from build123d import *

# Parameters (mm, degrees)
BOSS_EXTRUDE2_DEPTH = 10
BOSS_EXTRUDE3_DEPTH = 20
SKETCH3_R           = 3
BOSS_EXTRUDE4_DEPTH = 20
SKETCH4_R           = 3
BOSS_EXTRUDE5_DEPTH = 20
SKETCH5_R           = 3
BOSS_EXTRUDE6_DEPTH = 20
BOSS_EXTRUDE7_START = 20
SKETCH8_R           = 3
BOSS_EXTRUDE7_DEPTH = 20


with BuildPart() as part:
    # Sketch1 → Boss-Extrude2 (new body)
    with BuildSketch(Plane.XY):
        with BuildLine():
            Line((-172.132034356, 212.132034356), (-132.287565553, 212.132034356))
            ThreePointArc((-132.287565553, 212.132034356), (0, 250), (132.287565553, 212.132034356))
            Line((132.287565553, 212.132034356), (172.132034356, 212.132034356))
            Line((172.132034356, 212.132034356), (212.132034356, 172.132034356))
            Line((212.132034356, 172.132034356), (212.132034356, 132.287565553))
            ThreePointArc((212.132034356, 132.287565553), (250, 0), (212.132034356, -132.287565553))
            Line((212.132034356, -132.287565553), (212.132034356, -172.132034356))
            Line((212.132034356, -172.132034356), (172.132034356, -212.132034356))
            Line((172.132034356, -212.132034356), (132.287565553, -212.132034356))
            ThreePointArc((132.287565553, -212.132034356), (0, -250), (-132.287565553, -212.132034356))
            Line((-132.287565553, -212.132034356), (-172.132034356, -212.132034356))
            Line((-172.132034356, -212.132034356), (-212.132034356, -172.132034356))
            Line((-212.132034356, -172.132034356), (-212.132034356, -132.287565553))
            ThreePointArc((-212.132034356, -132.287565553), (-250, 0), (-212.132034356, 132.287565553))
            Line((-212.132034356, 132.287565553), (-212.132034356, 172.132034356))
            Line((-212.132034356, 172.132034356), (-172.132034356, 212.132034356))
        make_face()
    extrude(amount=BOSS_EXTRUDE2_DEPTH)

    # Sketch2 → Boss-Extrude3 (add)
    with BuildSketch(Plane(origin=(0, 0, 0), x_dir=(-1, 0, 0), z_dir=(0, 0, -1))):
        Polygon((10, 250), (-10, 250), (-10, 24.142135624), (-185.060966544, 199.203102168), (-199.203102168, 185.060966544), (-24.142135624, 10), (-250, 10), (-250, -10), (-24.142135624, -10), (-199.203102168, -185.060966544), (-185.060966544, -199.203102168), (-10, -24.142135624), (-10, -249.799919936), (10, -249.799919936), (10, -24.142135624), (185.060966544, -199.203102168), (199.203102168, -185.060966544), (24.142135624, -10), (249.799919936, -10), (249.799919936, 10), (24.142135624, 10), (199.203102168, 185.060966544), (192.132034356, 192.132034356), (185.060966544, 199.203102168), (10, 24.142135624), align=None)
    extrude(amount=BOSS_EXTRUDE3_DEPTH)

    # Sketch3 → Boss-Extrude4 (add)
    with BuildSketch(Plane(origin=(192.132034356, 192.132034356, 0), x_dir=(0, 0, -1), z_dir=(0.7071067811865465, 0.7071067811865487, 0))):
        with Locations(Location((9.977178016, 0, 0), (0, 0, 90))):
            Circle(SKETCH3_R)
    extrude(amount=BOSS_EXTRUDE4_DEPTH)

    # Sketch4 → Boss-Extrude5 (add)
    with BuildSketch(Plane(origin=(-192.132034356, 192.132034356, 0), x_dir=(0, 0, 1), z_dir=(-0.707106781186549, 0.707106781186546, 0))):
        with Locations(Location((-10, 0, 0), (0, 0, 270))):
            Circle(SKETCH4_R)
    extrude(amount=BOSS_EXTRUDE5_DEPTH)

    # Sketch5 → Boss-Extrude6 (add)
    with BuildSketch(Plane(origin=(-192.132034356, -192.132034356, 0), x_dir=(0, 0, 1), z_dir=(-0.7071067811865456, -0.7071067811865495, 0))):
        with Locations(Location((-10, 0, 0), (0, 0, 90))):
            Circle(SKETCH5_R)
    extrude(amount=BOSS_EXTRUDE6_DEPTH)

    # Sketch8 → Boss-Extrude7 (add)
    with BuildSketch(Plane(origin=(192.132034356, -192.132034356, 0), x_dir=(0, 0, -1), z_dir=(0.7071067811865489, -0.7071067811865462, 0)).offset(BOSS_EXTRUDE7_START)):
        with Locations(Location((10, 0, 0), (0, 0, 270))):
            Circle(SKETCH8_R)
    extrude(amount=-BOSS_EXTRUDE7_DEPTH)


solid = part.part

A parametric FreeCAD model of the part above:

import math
import FreeCAD as App
import Part
import Sketcher

V = App.Vector

doc = App.newDocument("Part")
body = doc.addObject("PartDesign::Body", "Body")

# Sketch on XY plane
sketch1 = body.newObject("Sketcher::SketchObject", "Sketch")
sketch1.AttachmentSupport = (doc.getObject("XY_Plane"), [""])
sketch1.MapMode = "FlatFace"
sketch1.addGeometry(Part.LineSegment(V(-132, 212, 0), V(-172, 212, 0)), False)
sketch1.addGeometry(Part.LineSegment(V(-172, 212, 0), V(-212, 172, 0)), False)
sketch1.addGeometry(Part.LineSegment(V(-212, 172, 0), V(-212, 132, 0)), False)
sketch1.addGeometry(Part.ArcOfCircle(Part.Circle(V(0, 0, 0), V(0, 0, 1), 250), math.radians(148), math.radians(212)), False)
sketch1.addGeometry(Part.LineSegment(V(-212, -132, 0), V(-212, -172, 0)), False)
sketch1.addGeometry(Part.LineSegment(V(-212, -172, 0), V(-172, -212, 0)), False)
sketch1.addGeometry(Part.LineSegment(V(-172, -212, 0), V(-132, -212, 0)), False)
sketch1.addGeometry(Part.ArcOfCircle(Part.Circle(V(0, 0, 0), V(0, 0, 1), 250), math.radians(-122), math.radians(-58)), False)
sketch1.addGeometry(Part.LineSegment(V(132, -212, 0), V(172, -212, 0)), False)
sketch1.addGeometry(Part.LineSegment(V(172, -212, 0), V(212, -172, 0)), False)
sketch1.addGeometry(Part.LineSegment(V(212, -172, 0), V(212, -132, 0)), False)
sketch1.addGeometry(Part.ArcOfCircle(Part.Circle(V(0, 0, 0), V(0, 0, 1), 250), math.radians(-32), math.radians(32)), False)
sketch1.addGeometry(Part.LineSegment(V(212, 132, 0), V(212, 172, 0)), False)
sketch1.addGeometry(Part.LineSegment(V(212, 172, 0), V(172, 212, 0)), False)
sketch1.addGeometry(Part.LineSegment(V(172, 212, 0), V(132, 212, 0)), False)
sketch1.addGeometry(Part.ArcOfCircle(Part.Circle(V(0, 0, 0), V(0, 0, 1), 250), math.radians(58), math.radians(122)), False)
sketch1.addConstraint(Sketcher.Constraint("Coincident", 0, 2, 1, 1))
sketch1.addConstraint(Sketcher.Constraint("Coincident", 1, 2, 2, 1))
sketch1.addConstraint(Sketcher.Constraint("Coincident", 2, 2, 3, 1))
sketch1.addConstraint(Sketcher.Constraint("Coincident", 3, 2, 4, 1))
sketch1.addConstraint(Sketcher.Constraint("Coincident", 4, 2, 5, 1))
sketch1.addConstraint(Sketcher.Constraint("Coincident", 5, 2, 6, 1))
sketch1.addConstraint(Sketcher.Constraint("Coincident", 6, 2, 7, 1))
sketch1.addConstraint(Sketcher.Constraint("Coincident", 7, 2, 8, 1))
sketch1.addConstraint(Sketcher.Constraint("Coincident", 8, 2, 9, 1))
sketch1.addConstraint(Sketcher.Constraint("Coincident", 9, 2, 10, 1))
sketch1.addConstraint(Sketcher.Constraint("Coincident", 10, 2, 11, 1))
sketch1.addConstraint(Sketcher.Constraint("Coincident", 11, 2, 12, 1))
sketch1.addConstraint(Sketcher.Constraint("Coincident", 12, 2, 13, 1))
sketch1.addConstraint(Sketcher.Constraint("Coincident", 13, 2, 14, 1))
sketch1.addConstraint(Sketcher.Constraint("Coincident", 14, 2, 15, 1))
sketch1.addConstraint(Sketcher.Constraint("Coincident", 15, 2, 0, 1))
sketch1.addConstraint(Sketcher.Constraint("Horizontal", 0))
sketch1.addConstraint(Sketcher.Constraint("Vertical", 2))
sketch1.addConstraint(Sketcher.Constraint("Vertical", 4))
sketch1.addConstraint(Sketcher.Constraint("Horizontal", 6))
sketch1.addConstraint(Sketcher.Constraint("Horizontal", 8))
sketch1.addConstraint(Sketcher.Constraint("Vertical", 10))
sketch1.addConstraint(Sketcher.Constraint("Vertical", 12))
sketch1.addConstraint(Sketcher.Constraint("Horizontal", 14))
sketch1.addConstraint(Sketcher.Constraint("Coincident", 3, 3, -1, 1))
sketch1.addConstraint(Sketcher.Constraint("Coincident", 7, 3, -1, 1))
sketch1.addConstraint(Sketcher.Constraint("Coincident", 11, 3, -1, 1))
sketch1.addConstraint(Sketcher.Constraint("Coincident", 15, 3, -1, 1))
sketch1.addConstraint(Sketcher.Constraint("Equal", 3, 7))
sketch1.addConstraint(Sketcher.Constraint("Equal", 7, 11))
sketch1.addConstraint(Sketcher.Constraint("Equal", 11, 15))
sketch1.addConstraint(Sketcher.Constraint("Symmetric", 0, 2, 8, 2, -1, 1))
sketch1.addConstraint(Sketcher.Constraint("Symmetric", 1, 2, 9, 2, -1, 1))
sketch1.addConstraint(Sketcher.Constraint("Symmetric", 4, 2, 12, 2, -1, 1))
sketch1.addConstraint(Sketcher.Constraint("Symmetric", 5, 2, 13, 2, -1, 1))
sketch1.addConstraint(Sketcher.Constraint("Symmetric", 5, 2, 8, 2, -2))
sketch1.addConstraint(Sketcher.Constraint("Symmetric", 4, 2, 9, 2, -2))
sketch1.addConstraint(Sketcher.Constraint("Perpendicular", 1, 5))
sketch1.addConstraint(Sketcher.Constraint("Equal", 14, 2))
sketch1.addConstraint(Sketcher.Constraint("Radius", 3, 250.0))
sketch1.addConstraint(Sketcher.Constraint("DistanceX", 1, 2, 0, 2, 40.0))
sketch1.addConstraint(Sketcher.Constraint("DistanceX", 0, 2, 0, 1, 39.844469))
pad1 = body.newObject("PartDesign::Pad", "Pad")
pad1.Profile = sketch1
pad1.Length = 10

# Sketch on XY plane
sketch2 = body.newObject("Sketcher::SketchObject", "Sketch001")
sketch2.AttachmentSupport = (doc.getObject("XY_Plane"), [""])
sketch2.MapMode = "FlatFace"
sketch2.addGeometry(Part.LineSegment(V(-10, 250, 0), V(10, 250, 0)), False)
sketch2.addGeometry(Part.LineSegment(V(10, 250, 0), V(10, 24, 0)), False)
sketch2.addGeometry(Part.LineSegment(V(10, 24, 0), V(185, 199, 0)), False)
sketch2.addGeometry(Part.LineSegment(V(185, 199, 0), V(199, 185, 0)), False)
sketch2.addGeometry(Part.LineSegment(V(199, 185, 0), V(24, 10, 0)), False)
sketch2.addGeometry(Part.LineSegment(V(24, 10, 0), V(250, 10, 0)), False)
sketch2.addGeometry(Part.LineSegment(V(250, 10, 0), V(250, -10, 0)), False)
sketch2.addGeometry(Part.LineSegment(V(250, -10, 0), V(24, -10, 0)), False)
sketch2.addGeometry(Part.LineSegment(V(24, -10, 0), V(199, -185, 0)), False)
sketch2.addGeometry(Part.LineSegment(V(199, -185, 0), V(185, -199, 0)), False)
sketch2.addGeometry(Part.LineSegment(V(185, -199, 0), V(10, -24, 0)), False)
sketch2.addGeometry(Part.LineSegment(V(10, -24, 0), V(10, -250, 0)), False)
sketch2.addGeometry(Part.LineSegment(V(10, -250, 0), V(-10, -250, 0)), False)
sketch2.addGeometry(Part.LineSegment(V(-10, -250, 0), V(-10, -24, 0)), False)
sketch2.addGeometry(Part.LineSegment(V(-10, -24, 0), V(-185, -199, 0)), False)
sketch2.addGeometry(Part.LineSegment(V(-185, -199, 0), V(-199, -185, 0)), False)
sketch2.addGeometry(Part.LineSegment(V(-199, -185, 0), V(-24, -10, 0)), False)
sketch2.addGeometry(Part.LineSegment(V(-24, -10, 0), V(-250, -10, 0)), False)
sketch2.addGeometry(Part.LineSegment(V(-250, -10, 0), V(-250, 10, 0)), False)
sketch2.addGeometry(Part.LineSegment(V(-250, 10, 0), V(-24, 10, 0)), False)
sketch2.addGeometry(Part.LineSegment(V(-24, 10, 0), V(-199, 185, 0)), False)
sketch2.addGeometry(Part.LineSegment(V(-199, 185, 0), V(-185, 199, 0)), False)
sketch2.addGeometry(Part.LineSegment(V(-185, 199, 0), V(-10, 24, 0)), False)
sketch2.addGeometry(Part.LineSegment(V(-10, 24, 0), V(-10, 250, 0)), False)
sketch2.addConstraint(Sketcher.Constraint("Coincident", 0, 2, 1, 1))
sketch2.addConstraint(Sketcher.Constraint("Coincident", 1, 2, 2, 1))
sketch2.addConstraint(Sketcher.Constraint("Coincident", 2, 2, 3, 1))
sketch2.addConstraint(Sketcher.Constraint("Coincident", 3, 2, 4, 1))
sketch2.addConstraint(Sketcher.Constraint("Coincident", 4, 2, 5, 1))
sketch2.addConstraint(Sketcher.Constraint("Coincident", 5, 2, 6, 1))
sketch2.addConstraint(Sketcher.Constraint("Coincident", 6, 2, 7, 1))
sketch2.addConstraint(Sketcher.Constraint("Coincident", 7, 2, 8, 1))
sketch2.addConstraint(Sketcher.Constraint("Coincident", 8, 2, 9, 1))
sketch2.addConstraint(Sketcher.Constraint("Coincident", 9, 2, 10, 1))
sketch2.addConstraint(Sketcher.Constraint("Coincident", 10, 2, 11, 1))
sketch2.addConstraint(Sketcher.Constraint("Coincident", 11, 2, 12, 1))
sketch2.addConstraint(Sketcher.Constraint("Coincident", 12, 2, 13, 1))
sketch2.addConstraint(Sketcher.Constraint("Coincident", 13, 2, 14, 1))
sketch2.addConstraint(Sketcher.Constraint("Coincident", 14, 2, 15, 1))
sketch2.addConstraint(Sketcher.Constraint("Coincident", 15, 2, 16, 1))
sketch2.addConstraint(Sketcher.Constraint("Coincident", 16, 2, 17, 1))
sketch2.addConstraint(Sketcher.Constraint("Coincident", 17, 2, 18, 1))
sketch2.addConstraint(Sketcher.Constraint("Coincident", 18, 2, 19, 1))
sketch2.addConstraint(Sketcher.Constraint("Coincident", 19, 2, 20, 1))
sketch2.addConstraint(Sketcher.Constraint("Coincident", 20, 2, 21, 1))
sketch2.addConstraint(Sketcher.Constraint("Coincident", 21, 2, 22, 1))
sketch2.addConstraint(Sketcher.Constraint("Coincident", 22, 2, 23, 1))
sketch2.addConstraint(Sketcher.Constraint("Coincident", 23, 2, 0, 1))
sketch2.addConstraint(Sketcher.Constraint("Horizontal", 0))
sketch2.addConstraint(Sketcher.Constraint("Vertical", 1))
sketch2.addConstraint(Sketcher.Constraint("Horizontal", 5))
sketch2.addConstraint(Sketcher.Constraint("Vertical", 6))
sketch2.addConstraint(Sketcher.Constraint("Horizontal", 7))
sketch2.addConstraint(Sketcher.Constraint("Vertical", 11))
sketch2.addConstraint(Sketcher.Constraint("Horizontal", 12))
sketch2.addConstraint(Sketcher.Constraint("Vertical", 13))
sketch2.addConstraint(Sketcher.Constraint("Horizontal", 17))
sketch2.addConstraint(Sketcher.Constraint("Vertical", 18))
sketch2.addConstraint(Sketcher.Constraint("Horizontal", 19))
sketch2.addConstraint(Sketcher.Constraint("Vertical", 23))
sketch2.addConstraint(Sketcher.Constraint("Symmetric", 1, 2, 13, 2, -1, 1))
sketch2.addConstraint(Sketcher.Constraint("Symmetric", 2, 2, 14, 2, -1, 1))
sketch2.addConstraint(Sketcher.Constraint("Symmetric", 3, 2, 15, 2, -1, 1))
sketch2.addConstraint(Sketcher.Constraint("Symmetric", 4, 2, 16, 2, -1, 1))
sketch2.addConstraint(Sketcher.Constraint("Symmetric", 7, 2, 19, 2, -1, 1))
sketch2.addConstraint(Sketcher.Constraint("Symmetric", 8, 2, 20, 2, -1, 1))
sketch2.addConstraint(Sketcher.Constraint("Symmetric", 9, 2, 21, 2, -1, 1))
sketch2.addConstraint(Sketcher.Constraint("Symmetric", 10, 2, 22, 2, -1, 1))
sketch2.addConstraint(Sketcher.Constraint("Symmetric", 10, 2, 13, 2, -2))
sketch2.addConstraint(Sketcher.Constraint("Symmetric", 9, 2, 14, 2, -2))
sketch2.addConstraint(Sketcher.Constraint("Symmetric", 8, 2, 15, 2, -2))
sketch2.addConstraint(Sketcher.Constraint("Symmetric", 7, 2, 16, 2, -2))
sketch2.addConstraint(Sketcher.Constraint("Perpendicular", 2, 3))
sketch2.addConstraint(Sketcher.Constraint("Perpendicular", 3, 4))
sketch2.addConstraint(Sketcher.Constraint("Perpendicular", 4, 8))
sketch2.addConstraint(Sketcher.Constraint("Equal", 7, 1))
sketch2.addConstraint(Sketcher.Constraint("Equal", 12, 6))
sketch2.addConstraint(Sketcher.Constraint("Equal", 19, 11))
sketch2.addConstraint(Sketcher.Constraint("Equal", 2, 4))
sketch2.addConstraint(Sketcher.Constraint("DistanceX", 0, 1, 0, 2, 20.0))
sketch2.addConstraint(Sketcher.Constraint("Distance", 3, 20.0))
sketch2.addConstraint(Sketcher.Constraint("DistanceY", -1, 1, 0, 2, 250.0))
sketch2.addConstraint(Sketcher.Constraint("DistanceX", 17, 2, 17, 1, 225.657784))
sketch2.addConstraint(Sketcher.Constraint("DistanceY", 1, 2, 3, 2, 160.918831))
pad2 = body.newObject("PartDesign::Pad", "Pad001")
pad2.Profile = sketch2
pad2.Length = 20
pad2.Reversed = True

# Sketch on an angled plane
sketch3 = body.newObject("Sketcher::SketchObject", "Sketch002")
sketch3.Placement = App.Placement(V(192.132034, 192.132034, 0), App.Rotation(V(0, 0, -1), V(-0.707106781, 0.707106781, 0), V(0.707106781, 0.707106781, 0), "ZXY"))
sketch3.addGeometry(Part.Circle(V(10, 0, 0), V(0, 0, 1), 3), False)
sketch3.addConstraint(Sketcher.Constraint("PointOnObject", 0, 3, -1))
sketch3.addConstraint(Sketcher.Constraint("Diameter", 0, 6.0))
sketch3.addConstraint(Sketcher.Constraint("DistanceX", -1, 1, 0, 3, 9.977178))
pad3 = body.newObject("PartDesign::Pad", "Pad002")
pad3.Profile = sketch3
pad3.Length = 20

# Sketch on an angled plane
sketch4 = body.newObject("Sketcher::SketchObject", "Sketch003")
sketch4.Placement = App.Placement(V(-192.132034, 192.132034, 0), App.Rotation(V(0, 0, 1), V(0.707106781, 0.707106781, 0), V(-0.707106781, 0.707106781, 0), "ZXY"))
sketch4.addGeometry(Part.Circle(V(-10, 0, 0), V(0, 0, 1), 3), False)
sketch4.addConstraint(Sketcher.Constraint("PointOnObject", 0, 3, -1))
sketch4.addConstraint(Sketcher.Constraint("Diameter", 0, 6.0))
sketch4.addConstraint(Sketcher.Constraint("DistanceX", 0, 3, -1, 1, 10.0))
pad4 = body.newObject("PartDesign::Pad", "Pad003")
pad4.Profile = sketch4
pad4.Length = 20

# Sketch on an angled plane
sketch5 = body.newObject("Sketcher::SketchObject", "Sketch004")
sketch5.Placement = App.Placement(V(-192.132034, -192.132034, 0), App.Rotation(V(0, 0, 1), V(-0.707106781, 0.707106781, 0), V(-0.707106781, -0.707106781, 0), "ZXY"))
sketch5.addGeometry(Part.Circle(V(-10, 0, 0), V(0, 0, 1), 3), False)
sketch5.addConstraint(Sketcher.Constraint("PointOnObject", 0, 3, -1))
sketch5.addConstraint(Sketcher.Constraint("Diameter", 0, 6.0))
sketch5.addConstraint(Sketcher.Constraint("DistanceX", 0, 3, -1, 1, 10.0))
pad5 = body.newObject("PartDesign::Pad", "Pad004")
pad5.Profile = sketch5
pad5.Length = 20

# Sketch on an angled plane
sketch6 = body.newObject("Sketcher::SketchObject", "Sketch005")
sketch6.Placement = App.Placement(V(206.27417, -206.27417, 0), App.Rotation(V(0, 0, -1), V(0.707106781, 0.707106781, 0), V(0.707106781, -0.707106781, 0), "ZXY"))
sketch6.addGeometry(Part.Circle(V(10, 0, 0), V(0, 0, 1), 3), False)
sketch6.addConstraint(Sketcher.Constraint("PointOnObject", 0, 3, -1))
sketch6.addConstraint(Sketcher.Constraint("Diameter", 0, 6.0))
sketch6.addConstraint(Sketcher.Constraint("DistanceX", -1, 1, 0, 3, 10.0))
pad6 = body.newObject("PartDesign::Pad", "Pad005")
pad6.Profile = sketch6
pad6.Length = 20
pad6.Reversed = True

doc.recompute()
